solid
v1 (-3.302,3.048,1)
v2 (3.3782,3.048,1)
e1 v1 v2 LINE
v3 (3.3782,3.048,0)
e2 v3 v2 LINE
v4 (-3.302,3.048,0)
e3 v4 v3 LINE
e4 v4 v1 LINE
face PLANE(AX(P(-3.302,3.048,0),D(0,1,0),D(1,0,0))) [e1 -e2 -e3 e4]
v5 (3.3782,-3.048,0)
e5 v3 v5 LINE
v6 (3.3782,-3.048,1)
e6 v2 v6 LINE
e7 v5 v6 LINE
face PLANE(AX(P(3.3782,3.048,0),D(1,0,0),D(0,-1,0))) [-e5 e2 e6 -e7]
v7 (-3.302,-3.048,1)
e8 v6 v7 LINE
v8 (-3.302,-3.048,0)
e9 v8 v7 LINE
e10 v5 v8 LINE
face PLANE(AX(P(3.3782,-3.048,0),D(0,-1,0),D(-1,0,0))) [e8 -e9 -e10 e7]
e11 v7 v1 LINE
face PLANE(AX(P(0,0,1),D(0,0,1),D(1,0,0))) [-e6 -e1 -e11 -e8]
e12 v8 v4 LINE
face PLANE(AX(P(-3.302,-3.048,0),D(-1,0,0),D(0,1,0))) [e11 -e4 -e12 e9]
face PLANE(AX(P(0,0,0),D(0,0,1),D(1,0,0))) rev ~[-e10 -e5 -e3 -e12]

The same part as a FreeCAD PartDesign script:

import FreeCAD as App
import Part
import Sketcher
Q = App.Units.Quantity


def add_polygon(sketch, points):
    """Adds a closed chain of lines whose ends are joined by coincident constraints."""
    first, n = sketch.GeometryCount, len(points)
    for a, b in zip(points, points[1:] + points[:1]):
        sketch.addGeometry(Part.LineSegment(App.Vector(*a, 0), App.Vector(*b, 0)), False)
    for i in range(n):
        sketch.addConstraint(Sketcher.Constraint("Coincident", first + i, 2, first + (i + 1) % n, 1))

doc = App.newDocument("Part")
body = doc.addObject("PartDesign::Body", "Body")

# Sketch on XY plane
sketch1 = body.newObject("Sketcher::SketchObject", "Sketch")
sketch1.AttachmentSupport = (doc.getObject("XY_Plane"), [""])
sketch1.MapMode = "FlatFace"
add_polygon(sketch1, [(3, 3), (-3, 3), (-3, -3), (3, -3)])  # lines 0-3
sketch1.addConstraint([
    Sketcher.Constraint("Horizontal", 0),
    Sketcher.Constraint("Vertical", 1),
    Sketcher.Constraint("Horizontal", 2),
    Sketcher.Constraint("Vertical", 3),
    Sketcher.Constraint("DistanceY", 1, 2, 1, 1, Q("0.24 in")),
    Sketcher.Constraint("DistanceX", 0, 2, 0, 1, Q("0.263 in")),
    Sketcher.Constraint("DistanceX", 0, 2, -1, 1, Q("0.13 in")),
    Sketcher.Constraint("DistanceY", -1, 1, 0, 2, Q("0.12 in")),
])
pad1 = body.newObject("PartDesign::Pad", "Pad")
pad1.Profile = sketch1
pad1.Length = 1

doc.recompute()
